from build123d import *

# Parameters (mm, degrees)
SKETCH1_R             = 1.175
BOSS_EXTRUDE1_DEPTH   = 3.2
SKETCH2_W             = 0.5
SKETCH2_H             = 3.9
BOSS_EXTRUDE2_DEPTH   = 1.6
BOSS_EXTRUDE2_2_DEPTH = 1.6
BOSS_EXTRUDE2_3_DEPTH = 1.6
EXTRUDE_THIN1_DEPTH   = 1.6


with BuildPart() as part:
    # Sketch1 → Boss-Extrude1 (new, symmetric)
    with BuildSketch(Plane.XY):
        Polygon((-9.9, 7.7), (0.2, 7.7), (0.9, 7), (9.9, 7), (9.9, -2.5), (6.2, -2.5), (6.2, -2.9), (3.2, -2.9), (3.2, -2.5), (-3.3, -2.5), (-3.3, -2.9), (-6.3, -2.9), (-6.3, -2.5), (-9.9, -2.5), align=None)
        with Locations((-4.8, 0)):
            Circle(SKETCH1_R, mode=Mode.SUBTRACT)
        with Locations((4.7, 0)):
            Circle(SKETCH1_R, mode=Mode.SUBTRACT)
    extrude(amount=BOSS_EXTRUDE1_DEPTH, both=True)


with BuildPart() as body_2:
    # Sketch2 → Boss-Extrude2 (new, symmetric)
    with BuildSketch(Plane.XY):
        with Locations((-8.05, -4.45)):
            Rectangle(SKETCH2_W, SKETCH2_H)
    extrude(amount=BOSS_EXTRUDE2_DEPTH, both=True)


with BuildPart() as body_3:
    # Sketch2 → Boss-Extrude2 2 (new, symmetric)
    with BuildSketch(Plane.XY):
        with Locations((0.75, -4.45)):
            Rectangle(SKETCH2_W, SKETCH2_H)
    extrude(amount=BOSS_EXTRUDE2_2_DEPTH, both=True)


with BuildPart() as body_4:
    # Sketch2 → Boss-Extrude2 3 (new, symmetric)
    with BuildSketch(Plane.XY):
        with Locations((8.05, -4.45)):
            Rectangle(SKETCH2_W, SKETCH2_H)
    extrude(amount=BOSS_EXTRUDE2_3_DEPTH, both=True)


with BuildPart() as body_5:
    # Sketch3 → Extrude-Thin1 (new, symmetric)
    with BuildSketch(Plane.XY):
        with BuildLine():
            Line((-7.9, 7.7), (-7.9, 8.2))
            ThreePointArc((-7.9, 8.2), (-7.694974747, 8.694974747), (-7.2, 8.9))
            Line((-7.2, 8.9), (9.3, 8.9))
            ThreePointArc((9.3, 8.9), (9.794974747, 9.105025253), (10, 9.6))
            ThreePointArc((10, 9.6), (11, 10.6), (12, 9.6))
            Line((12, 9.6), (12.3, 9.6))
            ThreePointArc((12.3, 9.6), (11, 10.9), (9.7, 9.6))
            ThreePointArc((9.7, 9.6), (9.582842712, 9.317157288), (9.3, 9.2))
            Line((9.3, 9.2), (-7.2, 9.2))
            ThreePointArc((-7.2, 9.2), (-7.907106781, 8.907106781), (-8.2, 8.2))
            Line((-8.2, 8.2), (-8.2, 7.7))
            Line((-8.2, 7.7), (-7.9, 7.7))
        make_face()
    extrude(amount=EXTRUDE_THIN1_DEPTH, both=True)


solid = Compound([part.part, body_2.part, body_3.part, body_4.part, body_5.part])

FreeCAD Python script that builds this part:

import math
import FreeCAD as App
import Part
import Sketcher
from FreeCAD import Vector
Q = App.Units.Quantity


def add_polygon(sketch, points):
    """Adds a closed chain of lines whose ends are joined by coincident constraints."""
    first, n = sketch.GeometryCount, len(points)
    for a, b in zip(points, points[1:] + points[:1]):
        sketch.addGeometry(Part.LineSegment(App.Vector(*a, 0), App.Vector(*b, 0)), False)
    for i in range(n):
        sketch.addConstraint(Sketcher.Constraint("Coincident", first + i, 2, first + (i + 1) % n, 1))

doc = App.newDocument("Part")
body = doc.addObject("PartDesign::Body", "Body")

# Sketch on XY plane
sketch1 = body.newObject("Sketcher::SketchObject", "Sketch")
sketch1.AttachmentSupport = (doc.getObject("XY_Plane"), [""])
sketch1.MapMode = "FlatFace"
add_polygon(sketch1, [(0.2, 7.7), (-9.9, 7.7), (-9.9, -2.5), (-6.3, -2.5), (-6.3, -2.9), (-3.3, -2.9), (-3.3, -2.5), (3.2, -2.5), (3.2, -2.9), (6.2, -2.9), (6.2, -2.5), (9.9, -2.5), (9.9, 7), (0.9, 7)])  # lines 0-13
sketch1.addGeometry(Part.Circle(Vector(4.7, 0, 0), Vector(0, 0, 1), 1.175), False)  # 14
sketch1.addGeometry(Part.Circle(Vector(-4.8, 0, 0), Vector(0, 0, 1), 1.175), False)  # 15
sketch1.addConstraint(Sketcher.Constraint("Horizontal", 0))
sketch1.addConstraint(Sketcher.Constraint("Vertical", 1))
sketch1.addConstraint(Sketcher.Constraint("Horizontal", 2))
sketch1.addConstraint(Sketcher.Constraint("Vertical", 3))
sketch1.addConstraint(Sketcher.Constraint("Horizontal", 4))
sketch1.addConstraint(Sketcher.Constraint("Vertical", 5))
sketch1.addConstraint(Sketcher.Constraint("Horizontal", 6))
sketch1.addConstraint(Sketcher.Constraint("Vertical", 7))
sketch1.addConstraint(Sketcher.Constraint("Horizontal", 8))
sketch1.addConstraint(Sketcher.Constraint("Vertical", 9))
sketch1.addConstraint(Sketcher.Constraint("Horizontal", 10))
sketch1.addConstraint(Sketcher.Constraint("Vertical", 11))
sketch1.addConstraint(Sketcher.Constraint("Horizontal", 12))
sketch1.addConstraint(Sketcher.Constraint("Equal", 14, 15))
sketch1.addConstraint(Sketcher.Constraint("Symmetric", 1, 2, 10, 2, -2))
sketch1.addConstraint(Sketcher.Constraint("PointOnObject", 14, 3, -1))
sketch1.addConstraint(Sketcher.Constraint("PointOnObject", 15, 3, -1))
sketch1.addConstraint(Sketcher.Constraint("Horizontal", 2, 2, 5, 2))
sketch1.addConstraint(Sketcher.Constraint("Horizontal", 4, 2, 7, 2))
sketch1.addConstraint(Sketcher.Constraint("Equal", 4, 8))
sketch1.addConstraint(Sketcher.Constraint("Diameter", 14, Q("2.35 mm")))
sketch1.addConstraint(Sketcher.Constraint("DistanceX", 4, 1, 4, 2, Q("3 mm")))
sketch1.addConstraint(Sketcher.Constraint("DistanceX", 12, 2, 12, 1, Q("9 mm")))
sketch1.addConstraint(Sketcher.Constraint("Angle", 13, Q("135 deg")))
sketch1.addConstraint(Sketcher.Constraint("DistanceX", 0, 2, 0, 1, Q("10.1 mm")))
sketch1.addConstraint(Sketcher.Constraint("DistanceX", 2, 1, 2, 2, Q("3.6 mm")))
sketch1.addConstraint(Sketcher.Constraint("DistanceX", 6, 1, 6, 2, Q("6.5 mm")))
sketch1.addConstraint(Sketcher.Constraint("DistanceX", 10, 1, 10, 2, Q("3.7 mm")))
sketch1.addConstraint(Sketcher.Constraint("DistanceY", 1, 2, 1, 1, Q("10.2 mm")))
sketch1.addConstraint(Sketcher.Constraint("DistanceY", 3, 2, 3, 1, Q("0.4 mm")))
sketch1.addConstraint(Sketcher.Constraint("DistanceY", -1, 1, 11, 2, Q("7 mm")))
sketch1.addConstraint(Sketcher.Constraint("DistanceX", 2, 2, 14, 3, Q("11 mm")))
sketch1.addConstraint(Sketcher.Constraint("DistanceX", 15, 3, 6, 2, Q("8 mm")))
pad1 = body.newObject("PartDesign::Pad", "Pad")
pad1.Profile = sketch1
pad1.Length = 6.4
pad1.Midplane = True
body2 = doc.addObject("PartDesign::Body", "Body001")

# Sketch on XY plane
sketch2 = body2.newObject("Sketcher::SketchObject", "Sketch001")
sketch2.AttachmentSupport = (doc.getObject("XY_Plane001"), [""])
sketch2.MapMode = "FlatFace"
add_polygon(sketch2, [(-8.3, -2.5), (-8.3, -6.4), (-7.8, -6.4), (-7.8, -2.5)])  # lines 0-3
sketch2.addConstraint(Sketcher.Constraint("Vertical", 0))
sketch2.addConstraint(Sketcher.Constraint("Horizontal", 1))
sketch2.addConstraint(Sketcher.Constraint("Vertical", 2))
sketch2.addConstraint(Sketcher.Constraint("Horizontal", 3))
sketch2.addConstraint(Sketcher.Constraint("DistanceX", 1, 1, 1, 2, Q("0.5 mm")))
sketch2.addConstraint(Sketcher.Constraint("DistanceY", 0, 2, 0, 1, Q("3.9 mm")))
sketch2.addConstraint(Sketcher.Constraint("DistanceX", 0, 2, -1, 1, Q("8.3 mm")))
sketch2.addConstraint(Sketcher.Constraint("DistanceY", 0, 2, -1, 1, Q("6.4 mm")))
pad2 = body2.newObject("PartDesign::Pad", "Pad001")
pad2.Profile = sketch2
pad2.Length = 3.2
pad2.Midplane = True
body3 = doc.addObject("PartDesign::Body", "Body002")

# Sketch on XY plane
sketch3 = body3.newObject("Sketcher::SketchObject", "Sketch002")
sketch3.AttachmentSupport = (doc.getObject("XY_Plane002"), [""])
sketch3.MapMode = "FlatFace"
add_polygon(sketch3, [(0.5, -2.5), (0.5, -6.4), (1, -6.4), (1, -2.5)])  # lines 0-3
sketch3.addConstraint(Sketcher.Constraint("Vertical", 0))
sketch3.addConstraint(Sketcher.Constraint("Horizontal", 1))
sketch3.addConstraint(Sketcher.Constraint("Vertical", 2))
sketch3.addConstraint(Sketcher.Constraint("Horizontal", 3))
sketch3.addConstraint(Sketcher.Constraint("DistanceX", 1, 1, 1, 2, Q("0.5 mm")))
sketch3.addConstraint(Sketcher.Constraint("DistanceY", 0, 2, 0, 1, Q("3.9 mm")))
sketch3.addConstraint(Sketcher.Constraint("DistanceX", -1, 1, 1, 2, Q("1 mm")))
sketch3.addConstraint(Sketcher.Constraint("DistanceY", 0, 2, -1, 1, Q("6.4 mm")))
pad3 = body3.newObject("PartDesign::Pad", "Pad002")
pad3.Profile = sketch3
pad3.Length = 3.2
pad3.Midplane = True
body4 = doc.addObject("PartDesign::Body", "Body003")

# Sketch on XY plane
sketch4 = body4.newObject("Sketcher::SketchObject", "Sketch003")
sketch4.AttachmentSupport = (doc.getObject("XY_Plane003"), [""])
sketch4.MapMode = "FlatFace"
add_polygon(sketch4, [(7.8, -2.5), (7.8, -6.4), (8.3, -6.4), (8.3, -2.5)])  # lines 0-3
sketch4.addConstraint(Sketcher.Constraint("Vertical", 0))
sketch4.addConstraint(Sketcher.Constraint("Horizontal", 1))
sketch4.addConstraint(Sketcher.Constraint("Vertical", 2))
sketch4.addConstraint(Sketcher.Constraint("Horizontal", 3))
sketch4.addConstraint(Sketcher.Constraint("DistanceX", 1, 1, 1, 2, Q("0.5 mm")))
sketch4.addConstraint(Sketcher.Constraint("DistanceY", 0, 2, 0, 1, Q("3.9 mm")))
sketch4.addConstraint(Sketcher.Constraint("DistanceX", -1, 1, 0, 2, Q("7.8 mm")))
sketch4.addConstraint(Sketcher.Constraint("DistanceY", 0, 2, -1, 1, Q("6.4 mm")))
pad4 = body4.newObject("PartDesign::Pad", "Pad003")
pad4.Profile = sketch4
pad4.Length = 3.2
pad4.Midplane = True
body5 = doc.addObject("PartDesign::Body", "Body004")

# Sketch on XY plane
sketch5 = body5.newObject("Sketcher::SketchObject", "Sketch004")
sketch5.AttachmentSupport = (doc.getObject("XY_Plane004"), [""])
sketch5.MapMode = "FlatFace"
sketch5.addGeometry(Part.LineSegment(Vector(-7.9, 7.7, 0), Vector(-7.9, 8.2, 0)), False)
sketch5.addGeometry(Part.ArcOfCircle(Part.Circle(Vector(-7.2, 8.2, 0), Vector(0, 0, 1), 0.7), math.radians(90), math.radians(180)), False)
sketch5.addGeometry(Part.LineSegment(Vector(-7.2, 8.9, 0), Vector(9.3, 8.9, 0)), False)
sketch5.addGeometry(Part.ArcOfCircle(Part.Circle(Vector(9.3, 9.6, 0), Vector(0, 0, 1), 0.7), math.radians(-90), math.radians(0)), False)
sketch5.addGeometry(Part.ArcOfCircle(Part.Circle(Vector(11, 9.6, 0), Vector(0, 0, 1), 1), math.radians(0), math.radians(180)), False)
sketch5.addGeometry(Part.LineSegment(Vector(12, 9.6, 0), Vector(12.3, 9.6, 0)), False)
sketch5.addGeometry(Part.ArcOfCircle(Part.Circle(Vector(11, 9.6, 0), Vector(0, 0, 1), 1.3), math.radians(0), math.radians(180)), False)
sketch5.addGeometry(Part.ArcOfCircle(Part.Circle(Vector(9.3, 9.6, 0), Vector(0, 0, 1), 0.4), math.radians(-90), math.radians(0)), False)
sketch5.addGeometry(Part.LineSegment(Vector(9.3, 9.2, 0), Vector(-7.2, 9.2, 0)), False)
sketch5.addGeometry(Part.ArcOfCircle(Part.Circle(Vector(-7.2, 8.2, 0), Vector(0, 0, 1), 1), math.radians(90), math.radians(180)), False)
sketch5.addGeometry(Part.LineSegment(Vector(-8.2, 8.2, 0), Vector(-8.2, 7.7, 0)), False)
sketch5.addGeometry(Part.LineSegment(Vector(-8.2, 7.7, 0), Vector(-7.9, 7.7, 0)), False)
sketch5.addConstraint(Sketcher.Constraint("Tangent", 0, 2, 1, 2))
sketch5.addConstraint(Sketcher.Constraint("Tangent", 1, 1, 2, 1))
sketch5.addConstraint(Sketcher.Constraint("Tangent", 2, 2, 3, 1))
sketch5.addConstraint(Sketcher.Constraint("Tangent", 3, 2, 4, 2))
sketch5.addConstraint(Sketcher.Constraint("Coincident", 4, 1, 5, 1))
sketch5.addConstraint(Sketcher.Constraint("Coincident", 5, 2, 6, 1))
sketch5.addConstraint(Sketcher.Constraint("Tangent", 6, 2, 7, 2))
sketch5.addConstraint(Sketcher.Constraint("Tangent", 7, 1, 8, 1))
sketch5.addConstraint(Sketcher.Constraint("Tangent", 8, 2, 9, 1))
sketch5.addConstraint(Sketcher.Constraint("Tangent", 9, 2, 10, 1))
sketch5.addConstraint(Sketcher.Constraint("Coincident", 10, 2, 11, 1))
sketch5.addConstraint(Sketcher.Constraint("Coincident", 11, 2, 0, 1))
sketch5.addConstraint(Sketcher.Constraint("Vertical", 0))
sketch5.addConstraint(Sketcher.Constraint("Horizontal", 2))
sketch5.addConstraint(Sketcher.Constraint("Horizontal", 5))
sketch5.addConstraint(Sketcher.Constraint("Horizontal", 8))
sketch5.addConstraint(Sketcher.Constraint("Vertical", 10))
sketch5.addConstraint(Sketcher.Constraint("Horizontal", 11))
sketch5.addConstraint(Sketcher.Constraint("Coincident", 6, 3, 4, 3))
sketch5.addConstraint(Sketcher.Constraint("Coincident", 7, 3, 3, 3))
sketch5.addConstraint(Sketcher.Constraint("Coincident", 9, 3, 1, 3))
sketch5.addConstraint(Sketcher.Constraint("Equal", 1, 3))
sketch5.addConstraint(Sketcher.Constraint("Equal", 4, 9))
sketch5.addConstraint(Sketcher.Constraint("Horizontal", 3, 3, 4, 3))
sketch5.addConstraint(Sketcher.Constraint("Horizontal", 3, 2, 4, 1))
sketch5.addConstraint(Sketcher.Constraint("Radius", 4, Q("1 mm")))
sketch5.addConstraint(Sketcher.Constraint("Radius", 1, Q("0.7 mm")))
sketch5.addConstraint(Sketcher.Constraint("DistanceX", 2, 1, 2, 2, Q("16.5 mm")))
sketch5.addConstraint(Sketcher.Constraint("DistanceY", 0, 1, 0, 2, Q("0.5 mm")))
sketch5.addConstraint(Sketcher.Constraint("DistanceX", -1, 1, 4, 3, Q("11 mm")))
sketch5.addConstraint(Sketcher.Constraint("DistanceY", -1, 1, 1, 3, Q("8.2 mm")))
pad5 = body5.newObject("PartDesign::Pad", "Pad004")
pad5.Profile = sketch5
pad5.Length = 3.2
pad5.Midplane = True

doc.recompute()
